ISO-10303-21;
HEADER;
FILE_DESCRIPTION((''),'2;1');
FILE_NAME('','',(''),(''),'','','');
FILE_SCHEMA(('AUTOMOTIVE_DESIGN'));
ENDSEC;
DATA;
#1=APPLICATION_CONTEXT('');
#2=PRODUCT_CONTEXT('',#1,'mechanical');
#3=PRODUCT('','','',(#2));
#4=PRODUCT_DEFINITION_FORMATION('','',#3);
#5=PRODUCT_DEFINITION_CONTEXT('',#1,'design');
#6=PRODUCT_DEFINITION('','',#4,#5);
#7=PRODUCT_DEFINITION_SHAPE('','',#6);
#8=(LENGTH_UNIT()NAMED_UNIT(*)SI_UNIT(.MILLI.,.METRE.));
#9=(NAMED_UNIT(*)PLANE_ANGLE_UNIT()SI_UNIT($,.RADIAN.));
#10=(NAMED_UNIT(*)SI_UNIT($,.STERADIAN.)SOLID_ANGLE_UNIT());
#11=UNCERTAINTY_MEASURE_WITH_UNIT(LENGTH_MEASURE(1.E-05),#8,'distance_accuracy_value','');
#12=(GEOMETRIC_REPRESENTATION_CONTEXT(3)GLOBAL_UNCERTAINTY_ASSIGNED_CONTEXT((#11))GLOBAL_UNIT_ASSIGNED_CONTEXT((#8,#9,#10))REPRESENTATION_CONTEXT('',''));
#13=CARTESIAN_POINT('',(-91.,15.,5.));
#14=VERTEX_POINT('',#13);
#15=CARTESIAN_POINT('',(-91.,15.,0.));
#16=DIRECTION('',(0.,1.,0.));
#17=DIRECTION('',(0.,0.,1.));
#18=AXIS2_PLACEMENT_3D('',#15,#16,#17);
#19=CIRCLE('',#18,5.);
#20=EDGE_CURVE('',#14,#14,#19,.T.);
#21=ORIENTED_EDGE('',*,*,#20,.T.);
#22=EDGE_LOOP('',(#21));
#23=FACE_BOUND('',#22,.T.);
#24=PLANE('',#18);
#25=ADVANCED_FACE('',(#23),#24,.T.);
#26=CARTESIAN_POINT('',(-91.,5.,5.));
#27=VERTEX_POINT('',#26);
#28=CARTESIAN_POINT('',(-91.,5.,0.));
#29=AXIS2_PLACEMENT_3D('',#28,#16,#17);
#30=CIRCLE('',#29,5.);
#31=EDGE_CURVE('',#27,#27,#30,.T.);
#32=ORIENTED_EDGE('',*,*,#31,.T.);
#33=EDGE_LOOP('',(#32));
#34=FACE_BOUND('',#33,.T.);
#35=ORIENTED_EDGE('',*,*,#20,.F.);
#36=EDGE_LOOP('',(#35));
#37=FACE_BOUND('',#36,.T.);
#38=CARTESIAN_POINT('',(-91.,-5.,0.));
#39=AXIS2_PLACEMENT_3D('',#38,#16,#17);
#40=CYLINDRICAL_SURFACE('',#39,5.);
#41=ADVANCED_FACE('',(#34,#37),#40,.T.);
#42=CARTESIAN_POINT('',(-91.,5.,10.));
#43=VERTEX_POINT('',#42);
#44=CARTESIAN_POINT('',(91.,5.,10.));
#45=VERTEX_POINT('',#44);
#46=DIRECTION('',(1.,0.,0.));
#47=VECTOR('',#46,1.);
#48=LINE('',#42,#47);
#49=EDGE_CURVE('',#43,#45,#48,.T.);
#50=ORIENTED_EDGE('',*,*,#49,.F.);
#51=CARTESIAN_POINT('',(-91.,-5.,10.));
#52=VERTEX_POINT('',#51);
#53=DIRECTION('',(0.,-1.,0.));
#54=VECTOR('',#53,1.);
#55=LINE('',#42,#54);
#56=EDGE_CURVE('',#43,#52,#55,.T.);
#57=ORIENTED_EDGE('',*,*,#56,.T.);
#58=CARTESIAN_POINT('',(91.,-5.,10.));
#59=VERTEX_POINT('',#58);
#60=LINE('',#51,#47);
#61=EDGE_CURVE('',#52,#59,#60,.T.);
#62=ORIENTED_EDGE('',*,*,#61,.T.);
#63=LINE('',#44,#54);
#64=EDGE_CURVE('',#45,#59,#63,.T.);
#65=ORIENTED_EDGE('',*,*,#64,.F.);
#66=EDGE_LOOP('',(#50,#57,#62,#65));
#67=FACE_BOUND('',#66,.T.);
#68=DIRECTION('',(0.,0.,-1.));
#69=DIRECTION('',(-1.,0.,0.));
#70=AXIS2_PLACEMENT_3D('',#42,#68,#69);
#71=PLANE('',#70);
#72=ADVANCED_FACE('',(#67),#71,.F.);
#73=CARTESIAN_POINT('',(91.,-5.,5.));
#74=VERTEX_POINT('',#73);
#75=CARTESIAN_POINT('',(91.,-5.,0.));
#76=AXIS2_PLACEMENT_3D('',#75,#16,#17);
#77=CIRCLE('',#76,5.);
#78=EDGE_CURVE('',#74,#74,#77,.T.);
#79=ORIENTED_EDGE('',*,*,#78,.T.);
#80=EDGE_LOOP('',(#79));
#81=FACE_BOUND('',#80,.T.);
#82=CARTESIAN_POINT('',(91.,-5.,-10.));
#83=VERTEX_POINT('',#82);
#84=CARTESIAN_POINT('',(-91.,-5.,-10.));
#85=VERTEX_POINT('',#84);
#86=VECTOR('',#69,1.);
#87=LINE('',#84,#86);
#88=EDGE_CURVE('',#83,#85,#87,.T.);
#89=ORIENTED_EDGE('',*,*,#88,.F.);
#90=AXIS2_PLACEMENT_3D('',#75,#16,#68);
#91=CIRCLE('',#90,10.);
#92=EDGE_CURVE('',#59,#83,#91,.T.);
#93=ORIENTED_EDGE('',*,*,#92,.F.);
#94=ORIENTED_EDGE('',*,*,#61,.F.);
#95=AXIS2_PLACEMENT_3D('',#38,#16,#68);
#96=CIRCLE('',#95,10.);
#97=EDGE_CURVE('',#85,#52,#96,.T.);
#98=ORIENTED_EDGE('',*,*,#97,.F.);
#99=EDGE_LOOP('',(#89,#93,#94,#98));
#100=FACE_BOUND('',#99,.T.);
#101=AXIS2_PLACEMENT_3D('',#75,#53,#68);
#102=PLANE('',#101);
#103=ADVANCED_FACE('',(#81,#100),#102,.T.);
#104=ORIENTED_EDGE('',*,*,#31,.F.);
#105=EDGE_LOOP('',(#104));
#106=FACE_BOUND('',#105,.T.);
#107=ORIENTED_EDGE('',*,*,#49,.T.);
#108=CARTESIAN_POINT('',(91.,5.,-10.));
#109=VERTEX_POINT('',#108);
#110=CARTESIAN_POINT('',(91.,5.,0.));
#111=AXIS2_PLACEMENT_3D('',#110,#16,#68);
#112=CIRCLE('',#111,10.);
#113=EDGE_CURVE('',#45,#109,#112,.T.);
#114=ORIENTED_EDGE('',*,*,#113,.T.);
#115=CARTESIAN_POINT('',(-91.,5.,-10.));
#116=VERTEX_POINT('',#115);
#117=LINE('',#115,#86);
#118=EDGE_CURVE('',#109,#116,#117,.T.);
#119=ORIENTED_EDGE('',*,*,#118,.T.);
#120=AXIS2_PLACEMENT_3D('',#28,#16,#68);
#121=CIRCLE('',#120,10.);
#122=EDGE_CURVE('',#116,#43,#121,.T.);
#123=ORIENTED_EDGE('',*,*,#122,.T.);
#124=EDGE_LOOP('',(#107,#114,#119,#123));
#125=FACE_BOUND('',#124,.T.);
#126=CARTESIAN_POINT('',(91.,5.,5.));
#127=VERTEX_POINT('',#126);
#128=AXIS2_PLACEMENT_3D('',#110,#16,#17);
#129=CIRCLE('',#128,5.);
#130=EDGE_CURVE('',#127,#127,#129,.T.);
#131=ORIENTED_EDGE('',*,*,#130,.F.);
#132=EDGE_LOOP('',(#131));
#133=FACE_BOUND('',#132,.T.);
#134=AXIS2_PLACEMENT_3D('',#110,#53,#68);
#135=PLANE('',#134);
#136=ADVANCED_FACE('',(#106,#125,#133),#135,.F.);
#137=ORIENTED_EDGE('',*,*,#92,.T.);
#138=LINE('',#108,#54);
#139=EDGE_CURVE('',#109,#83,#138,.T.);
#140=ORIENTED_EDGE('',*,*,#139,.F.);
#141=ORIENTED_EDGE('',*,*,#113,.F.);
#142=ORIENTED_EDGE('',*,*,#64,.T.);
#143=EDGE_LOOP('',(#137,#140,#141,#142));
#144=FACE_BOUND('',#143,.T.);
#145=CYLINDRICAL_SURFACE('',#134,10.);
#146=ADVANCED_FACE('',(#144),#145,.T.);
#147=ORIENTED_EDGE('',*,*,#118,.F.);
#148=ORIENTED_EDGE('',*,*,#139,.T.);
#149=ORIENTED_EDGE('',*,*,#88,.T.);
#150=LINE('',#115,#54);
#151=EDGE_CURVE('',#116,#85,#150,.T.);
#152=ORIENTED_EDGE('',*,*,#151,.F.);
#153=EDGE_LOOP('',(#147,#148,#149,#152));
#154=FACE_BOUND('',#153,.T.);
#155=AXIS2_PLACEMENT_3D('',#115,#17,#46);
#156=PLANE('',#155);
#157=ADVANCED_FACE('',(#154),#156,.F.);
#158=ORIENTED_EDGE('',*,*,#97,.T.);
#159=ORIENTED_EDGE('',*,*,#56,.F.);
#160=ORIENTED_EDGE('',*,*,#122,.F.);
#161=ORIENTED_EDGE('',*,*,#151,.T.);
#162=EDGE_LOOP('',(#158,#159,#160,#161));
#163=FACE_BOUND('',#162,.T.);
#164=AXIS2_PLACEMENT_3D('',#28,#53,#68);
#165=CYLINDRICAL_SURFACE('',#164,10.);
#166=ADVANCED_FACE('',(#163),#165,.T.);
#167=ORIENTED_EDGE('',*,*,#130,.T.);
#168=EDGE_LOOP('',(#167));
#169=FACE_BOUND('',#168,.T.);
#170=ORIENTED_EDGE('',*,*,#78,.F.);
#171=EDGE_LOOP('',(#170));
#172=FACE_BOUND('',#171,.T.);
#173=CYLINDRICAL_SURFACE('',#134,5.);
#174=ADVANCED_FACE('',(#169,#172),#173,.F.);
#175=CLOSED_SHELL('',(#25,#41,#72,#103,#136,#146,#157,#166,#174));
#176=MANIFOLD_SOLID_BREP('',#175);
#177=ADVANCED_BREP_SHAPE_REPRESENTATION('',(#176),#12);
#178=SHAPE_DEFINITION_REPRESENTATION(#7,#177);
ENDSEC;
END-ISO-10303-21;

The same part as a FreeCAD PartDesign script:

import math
import FreeCAD as App
import Part
import Sketcher

doc = App.newDocument("Part")
body = doc.addObject("PartDesign::Body", "Body")

sketch1 = doc.addObject("Sketcher::SketchObject", "Sketch")
body.addObject(sketch1)
sketch1.AttachmentSupport = (doc.XZ_Plane, [""])
sketch1.MapMode = "FlatFace"
sketch1.addGeometry(Part.LineSegment(App.Vector(-91, 10, 0), App.Vector(91, 10, 0)), False)
sketch1.addGeometry(Part.ArcOfCircle(Part.Circle(App.Vector(91, 0, 0), App.Vector(0, 0, 1), 10), math.radians(-90), math.radians(90)), False)
sketch1.addGeometry(Part.LineSegment(App.Vector(91, -10, 0), App.Vector(-91, -10, 0)), False)
sketch1.addGeometry(Part.ArcOfCircle(Part.Circle(App.Vector(-91, 0, 0), App.Vector(0, 0, 1), 10), math.radians(90), math.radians(270)), False)
sketch1.addGeometry(Part.Circle(App.Vector(-91, 0, 0), App.Vector(0, 0, 1), 5), False)
sketch1.addGeometry(Part.Circle(App.Vector(91, 0, 0), App.Vector(0, 0, 1), 5), False)
sketch1.addConstraint(Sketcher.Constraint("Tangent", 0, 2, 1, 2))
sketch1.addConstraint(Sketcher.Constraint("Tangent", 1, 1, 2, 1))
sketch1.addConstraint(Sketcher.Constraint("Tangent", 2, 2, 3, 2))
sketch1.addConstraint(Sketcher.Constraint("Tangent", 3, 1, 0, 1))
sketch1.addConstraint(Sketcher.Constraint("Horizontal", 0))
sketch1.addConstraint(Sketcher.Constraint("Horizontal", 2))
sketch1.addConstraint(Sketcher.Constraint("Coincident", 4, 3, 3, 3))
sketch1.addConstraint(Sketcher.Constraint("Coincident", 5, 3, 1, 3))
sketch1.addConstraint(Sketcher.Constraint("Equal", 4, 5))
sketch1.addConstraint(Sketcher.Constraint("Symmetric", 1, 3, 3, 3, -1, 1))
sketch1.addConstraint(Sketcher.Constraint("Diameter", 4, 10.0))
sketch1.addConstraint(Sketcher.Constraint("Radius", 1, 10.0))
sketch1.addConstraint(Sketcher.Constraint("DistanceX", 0, 1, 0, 2, 182.0))
pad1 = doc.addObject("PartDesign::Pad", "Pad")
body.addObject(pad1)
pad1.Profile = sketch1
pad1.Length = 10
pad1.Midplane = True

sketch2 = doc.addObject("Sketcher::SketchObject", "Sketch001")
body.addObject(sketch2)
sketch2.AttachmentSupport = (doc.XZ_Plane, [""])
sketch2.MapMode = "FlatFace"
sketch2.addGeometry(Part.Circle(App.Vector(-91, 0, 0), App.Vector(0, 0, 1), 5), False)
sketch2.addConstraint(Sketcher.Constraint("PointOnObject", 0, 3, -1))
sketch2.addConstraint(Sketcher.Constraint("Diameter", 0, 10.0))
sketch2.addConstraint(Sketcher.Constraint("DistanceX", 0, 3, -1, 1, 91.0))
pad2 = doc.addObject("PartDesign::Pad", "Pad001")
body.addObject(pad2)
pad2.Profile = sketch2
pad2.Type = "TwoLengths"
pad2.Length = 15
pad2.Length2 = 5
pad2.Reversed = True

doc.recompute()
